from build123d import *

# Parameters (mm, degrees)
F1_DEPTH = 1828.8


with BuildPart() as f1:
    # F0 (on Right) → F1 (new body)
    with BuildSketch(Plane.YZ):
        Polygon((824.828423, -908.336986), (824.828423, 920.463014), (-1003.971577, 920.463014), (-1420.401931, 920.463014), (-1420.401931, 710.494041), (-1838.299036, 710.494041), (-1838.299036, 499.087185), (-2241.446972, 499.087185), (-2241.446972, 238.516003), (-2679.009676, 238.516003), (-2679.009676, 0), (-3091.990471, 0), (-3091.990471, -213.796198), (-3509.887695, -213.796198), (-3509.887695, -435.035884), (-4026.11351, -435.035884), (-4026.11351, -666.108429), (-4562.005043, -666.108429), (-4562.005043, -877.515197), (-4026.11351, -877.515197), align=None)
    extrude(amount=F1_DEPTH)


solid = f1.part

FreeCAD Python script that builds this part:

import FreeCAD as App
import Part
import Sketcher

V = App.Vector
Q = App.Units.Quantity

doc = App.newDocument("Part")
params = doc.addObject("Spreadsheet::Sheet", "Params")
for row, (alias, value) in enumerate([
    ("sketch1_height", "72 in"),
    ("pad1_length", "72 in"),
], start=1):
    params.set(f"A{row}", alias)
    params.set(f"B{row}", "=" + value)
    params.setAlias(f"B{row}", alias)

body = doc.addObject("PartDesign::Body", "Body")

# Sketch on YZ plane
sketch1 = body.newObject("Sketcher::SketchObject", "Sketch")
sketch1.AttachmentSupport = (doc.getObject("YZ_Plane"), [""])
sketch1.MapMode = "FlatFace"
sketch1.addGeometry([
    Part.LineSegment(V(825, -908, 0), V(825, 920, 0)),  # 0
    Part.LineSegment(V(825, 920, 0), V(-1420, 920, 0)),  # 1
    Part.LineSegment(V(-1420, 920, 0), V(-1420, 710, 0)),  # 2
    Part.LineSegment(V(-1420, 710, 0), V(-1838, 710, 0)),  # 3
    Part.LineSegment(V(-1838, 710, 0), V(-1838, 499, 0)),  # 4
    Part.LineSegment(V(-1838, 499, 0), V(-2241, 499, 0)),  # 5
    Part.LineSegment(V(-2241, 499, 0), V(-2241, 239, 0)),  # 6
    Part.LineSegment(V(-2241, 239, 0), V(-2679, 239, 0)),  # 7
    Part.LineSegment(V(-2679, 239, 0), V(-2679, 0, 0)),  # 8
    Part.LineSegment(V(-2679, 0, 0), V(-3092, 0, 0)),  # 9
    Part.LineSegment(V(-3092, 0, 0), V(-3092, -214, 0)),  # 10
    Part.LineSegment(V(-3092, -214, 0), V(-3510, -214, 0)),  # 11
    Part.LineSegment(V(-3510, -214, 0), V(-3510, -435, 0)),  # 12
    Part.LineSegment(V(-3510, -435, 0), V(-4026, -435, 0)),  # 13
    Part.LineSegment(V(-4026, -435, 0), V(-4026, -666, 0)),  # 14
    Part.LineSegment(V(-4026, -666, 0), V(-4562, -666, 0)),  # 15
    Part.LineSegment(V(-4562, -666, 0), V(-4562, -878, 0)),  # 16
    Part.LineSegment(V(-4562, -878, 0), V(-4026, -878, 0)),  # 17
    Part.LineSegment(V(-4026, -878, 0), V(825, -908, 0)),  # 18
], False)
sketch1.addConstraint([
    Sketcher.Constraint("Coincident", 0, 2, 1, 1),
    Sketcher.Constraint("Coincident", 1, 2, 2, 1),
    Sketcher.Constraint("Coincident", 2, 2, 3, 1),
    Sketcher.Constraint("Coincident", 3, 2, 4, 1),
    Sketcher.Constraint("Coincident", 4, 2, 5, 1),
    Sketcher.Constraint("Coincident", 5, 2, 6, 1),
    Sketcher.Constraint("Coincident", 6, 2, 7, 1),
    Sketcher.Constraint("Coincident", 7, 2, 8, 1),
    Sketcher.Constraint("Coincident", 8, 2, 9, 1),
    Sketcher.Constraint("Coincident", 9, 2, 10, 1),
    Sketcher.Constraint("Coincident", 10, 2, 11, 1),
    Sketcher.Constraint("Coincident", 11, 2, 12, 1),
    Sketcher.Constraint("Coincident", 12, 2, 13, 1),
    Sketcher.Constraint("Coincident", 13, 2, 14, 1),
    Sketcher.Constraint("Coincident", 14, 2, 15, 1),
    Sketcher.Constraint("Coincident", 15, 2, 16, 1),
    Sketcher.Constraint("Coincident", 16, 2, 17, 1),
    Sketcher.Constraint("Coincident", 17, 2, 18, 1),
    Sketcher.Constraint("Coincident", 18, 2, 0, 1),
    Sketcher.Constraint("Vertical", 0),
    Sketcher.Constraint("Horizontal", 1),
    Sketcher.Constraint("Vertical", 2),
    Sketcher.Constraint("Horizontal", 3),
    Sketcher.Constraint("Vertical", 4),
    Sketcher.Constraint("Horizontal", 5),
    Sketcher.Constraint("Vertical", 6),
    Sketcher.Constraint("Horizontal", 7),
    Sketcher.Constraint("Vertical", 8),
    Sketcher.Constraint("Horizontal", 9),
    Sketcher.Constraint("Vertical", 10),
    Sketcher.Constraint("Horizontal", 11),
    Sketcher.Constraint("Vertical", 12),
    Sketcher.Constraint("Horizontal", 13),
    Sketcher.Constraint("Vertical", 14),
    Sketcher.Constraint("Horizontal", 15),
    Sketcher.Constraint("Vertical", 16),
    Sketcher.Constraint("Horizontal", 17),
    Sketcher.Constraint("PointOnObject", 8, 2, -1),
    Sketcher.Constraint("Vertical", 14, 2, 17, 2),
    Sketcher.Constraint("DistanceY", 0, 1, 0, 2, Q("72 in")),
    Sketcher.Constraint("DistanceY", 10, 2, 10, 1, Q("213.796198 mm")),
    Sketcher.Constraint("DistanceY", 6, 2, 6, 1, Q("260.571182 mm")),
    Sketcher.Constraint("DistanceX", 9, 2, 6, 2, Q("850.543499 mm")),
    Sketcher.Constraint("DistanceY", 10, 2, 7, 2, Q("452.312201 mm")),
    Sketcher.Constraint("DistanceY", 16, 2, 11, 2, Q("663.718999 mm")),
    Sketcher.Constraint("Distance", 18, Q("4851.039849 mm")),
    Sketcher.Constraint("DistanceX", 1, 2, 1, 1, Q("2245.230354 mm")),
    Sketcher.Constraint("DistanceX", 3, 2, 3, 1, Q("417.897105 mm")),
    Sketcher.Constraint("DistanceX", 5, 2, 5, 1, Q("403.147936 mm")),
    Sketcher.Constraint("DistanceX", 7, 2, 7, 1, Q("437.562704 mm")),
    Sketcher.Constraint("DistanceX", 11, 2, 11, 1, Q("417.897224 mm")),
    Sketcher.Constraint("DistanceX", 15, 2, 15, 1, Q("535.891533 mm")),
    Sketcher.Constraint("DistanceY", 2, 2, 2, 1, Q("209.968973 mm")),
    Sketcher.Constraint("DistanceY", 4, 2, 4, 1, Q("211.406856 mm")),
    Sketcher.Constraint("DistanceY", 12, 2, 12, 1, Q("221.239686 mm")),
    Sketcher.Constraint("DistanceY", 14, 2, 14, 1, Q("231.072545 mm")),
    Sketcher.Constraint("DistanceX", 1, 2, -1, 1, Q("1420.401931 mm")),
])
sketch1.setExpression("Constraints[39]", "Params.sketch1_height")
pad1 = body.newObject("PartDesign::Pad", "Pad")
pad1.Profile = sketch1
pad1.setExpression("Length", "Params.pad1_length")

doc.recompute()
